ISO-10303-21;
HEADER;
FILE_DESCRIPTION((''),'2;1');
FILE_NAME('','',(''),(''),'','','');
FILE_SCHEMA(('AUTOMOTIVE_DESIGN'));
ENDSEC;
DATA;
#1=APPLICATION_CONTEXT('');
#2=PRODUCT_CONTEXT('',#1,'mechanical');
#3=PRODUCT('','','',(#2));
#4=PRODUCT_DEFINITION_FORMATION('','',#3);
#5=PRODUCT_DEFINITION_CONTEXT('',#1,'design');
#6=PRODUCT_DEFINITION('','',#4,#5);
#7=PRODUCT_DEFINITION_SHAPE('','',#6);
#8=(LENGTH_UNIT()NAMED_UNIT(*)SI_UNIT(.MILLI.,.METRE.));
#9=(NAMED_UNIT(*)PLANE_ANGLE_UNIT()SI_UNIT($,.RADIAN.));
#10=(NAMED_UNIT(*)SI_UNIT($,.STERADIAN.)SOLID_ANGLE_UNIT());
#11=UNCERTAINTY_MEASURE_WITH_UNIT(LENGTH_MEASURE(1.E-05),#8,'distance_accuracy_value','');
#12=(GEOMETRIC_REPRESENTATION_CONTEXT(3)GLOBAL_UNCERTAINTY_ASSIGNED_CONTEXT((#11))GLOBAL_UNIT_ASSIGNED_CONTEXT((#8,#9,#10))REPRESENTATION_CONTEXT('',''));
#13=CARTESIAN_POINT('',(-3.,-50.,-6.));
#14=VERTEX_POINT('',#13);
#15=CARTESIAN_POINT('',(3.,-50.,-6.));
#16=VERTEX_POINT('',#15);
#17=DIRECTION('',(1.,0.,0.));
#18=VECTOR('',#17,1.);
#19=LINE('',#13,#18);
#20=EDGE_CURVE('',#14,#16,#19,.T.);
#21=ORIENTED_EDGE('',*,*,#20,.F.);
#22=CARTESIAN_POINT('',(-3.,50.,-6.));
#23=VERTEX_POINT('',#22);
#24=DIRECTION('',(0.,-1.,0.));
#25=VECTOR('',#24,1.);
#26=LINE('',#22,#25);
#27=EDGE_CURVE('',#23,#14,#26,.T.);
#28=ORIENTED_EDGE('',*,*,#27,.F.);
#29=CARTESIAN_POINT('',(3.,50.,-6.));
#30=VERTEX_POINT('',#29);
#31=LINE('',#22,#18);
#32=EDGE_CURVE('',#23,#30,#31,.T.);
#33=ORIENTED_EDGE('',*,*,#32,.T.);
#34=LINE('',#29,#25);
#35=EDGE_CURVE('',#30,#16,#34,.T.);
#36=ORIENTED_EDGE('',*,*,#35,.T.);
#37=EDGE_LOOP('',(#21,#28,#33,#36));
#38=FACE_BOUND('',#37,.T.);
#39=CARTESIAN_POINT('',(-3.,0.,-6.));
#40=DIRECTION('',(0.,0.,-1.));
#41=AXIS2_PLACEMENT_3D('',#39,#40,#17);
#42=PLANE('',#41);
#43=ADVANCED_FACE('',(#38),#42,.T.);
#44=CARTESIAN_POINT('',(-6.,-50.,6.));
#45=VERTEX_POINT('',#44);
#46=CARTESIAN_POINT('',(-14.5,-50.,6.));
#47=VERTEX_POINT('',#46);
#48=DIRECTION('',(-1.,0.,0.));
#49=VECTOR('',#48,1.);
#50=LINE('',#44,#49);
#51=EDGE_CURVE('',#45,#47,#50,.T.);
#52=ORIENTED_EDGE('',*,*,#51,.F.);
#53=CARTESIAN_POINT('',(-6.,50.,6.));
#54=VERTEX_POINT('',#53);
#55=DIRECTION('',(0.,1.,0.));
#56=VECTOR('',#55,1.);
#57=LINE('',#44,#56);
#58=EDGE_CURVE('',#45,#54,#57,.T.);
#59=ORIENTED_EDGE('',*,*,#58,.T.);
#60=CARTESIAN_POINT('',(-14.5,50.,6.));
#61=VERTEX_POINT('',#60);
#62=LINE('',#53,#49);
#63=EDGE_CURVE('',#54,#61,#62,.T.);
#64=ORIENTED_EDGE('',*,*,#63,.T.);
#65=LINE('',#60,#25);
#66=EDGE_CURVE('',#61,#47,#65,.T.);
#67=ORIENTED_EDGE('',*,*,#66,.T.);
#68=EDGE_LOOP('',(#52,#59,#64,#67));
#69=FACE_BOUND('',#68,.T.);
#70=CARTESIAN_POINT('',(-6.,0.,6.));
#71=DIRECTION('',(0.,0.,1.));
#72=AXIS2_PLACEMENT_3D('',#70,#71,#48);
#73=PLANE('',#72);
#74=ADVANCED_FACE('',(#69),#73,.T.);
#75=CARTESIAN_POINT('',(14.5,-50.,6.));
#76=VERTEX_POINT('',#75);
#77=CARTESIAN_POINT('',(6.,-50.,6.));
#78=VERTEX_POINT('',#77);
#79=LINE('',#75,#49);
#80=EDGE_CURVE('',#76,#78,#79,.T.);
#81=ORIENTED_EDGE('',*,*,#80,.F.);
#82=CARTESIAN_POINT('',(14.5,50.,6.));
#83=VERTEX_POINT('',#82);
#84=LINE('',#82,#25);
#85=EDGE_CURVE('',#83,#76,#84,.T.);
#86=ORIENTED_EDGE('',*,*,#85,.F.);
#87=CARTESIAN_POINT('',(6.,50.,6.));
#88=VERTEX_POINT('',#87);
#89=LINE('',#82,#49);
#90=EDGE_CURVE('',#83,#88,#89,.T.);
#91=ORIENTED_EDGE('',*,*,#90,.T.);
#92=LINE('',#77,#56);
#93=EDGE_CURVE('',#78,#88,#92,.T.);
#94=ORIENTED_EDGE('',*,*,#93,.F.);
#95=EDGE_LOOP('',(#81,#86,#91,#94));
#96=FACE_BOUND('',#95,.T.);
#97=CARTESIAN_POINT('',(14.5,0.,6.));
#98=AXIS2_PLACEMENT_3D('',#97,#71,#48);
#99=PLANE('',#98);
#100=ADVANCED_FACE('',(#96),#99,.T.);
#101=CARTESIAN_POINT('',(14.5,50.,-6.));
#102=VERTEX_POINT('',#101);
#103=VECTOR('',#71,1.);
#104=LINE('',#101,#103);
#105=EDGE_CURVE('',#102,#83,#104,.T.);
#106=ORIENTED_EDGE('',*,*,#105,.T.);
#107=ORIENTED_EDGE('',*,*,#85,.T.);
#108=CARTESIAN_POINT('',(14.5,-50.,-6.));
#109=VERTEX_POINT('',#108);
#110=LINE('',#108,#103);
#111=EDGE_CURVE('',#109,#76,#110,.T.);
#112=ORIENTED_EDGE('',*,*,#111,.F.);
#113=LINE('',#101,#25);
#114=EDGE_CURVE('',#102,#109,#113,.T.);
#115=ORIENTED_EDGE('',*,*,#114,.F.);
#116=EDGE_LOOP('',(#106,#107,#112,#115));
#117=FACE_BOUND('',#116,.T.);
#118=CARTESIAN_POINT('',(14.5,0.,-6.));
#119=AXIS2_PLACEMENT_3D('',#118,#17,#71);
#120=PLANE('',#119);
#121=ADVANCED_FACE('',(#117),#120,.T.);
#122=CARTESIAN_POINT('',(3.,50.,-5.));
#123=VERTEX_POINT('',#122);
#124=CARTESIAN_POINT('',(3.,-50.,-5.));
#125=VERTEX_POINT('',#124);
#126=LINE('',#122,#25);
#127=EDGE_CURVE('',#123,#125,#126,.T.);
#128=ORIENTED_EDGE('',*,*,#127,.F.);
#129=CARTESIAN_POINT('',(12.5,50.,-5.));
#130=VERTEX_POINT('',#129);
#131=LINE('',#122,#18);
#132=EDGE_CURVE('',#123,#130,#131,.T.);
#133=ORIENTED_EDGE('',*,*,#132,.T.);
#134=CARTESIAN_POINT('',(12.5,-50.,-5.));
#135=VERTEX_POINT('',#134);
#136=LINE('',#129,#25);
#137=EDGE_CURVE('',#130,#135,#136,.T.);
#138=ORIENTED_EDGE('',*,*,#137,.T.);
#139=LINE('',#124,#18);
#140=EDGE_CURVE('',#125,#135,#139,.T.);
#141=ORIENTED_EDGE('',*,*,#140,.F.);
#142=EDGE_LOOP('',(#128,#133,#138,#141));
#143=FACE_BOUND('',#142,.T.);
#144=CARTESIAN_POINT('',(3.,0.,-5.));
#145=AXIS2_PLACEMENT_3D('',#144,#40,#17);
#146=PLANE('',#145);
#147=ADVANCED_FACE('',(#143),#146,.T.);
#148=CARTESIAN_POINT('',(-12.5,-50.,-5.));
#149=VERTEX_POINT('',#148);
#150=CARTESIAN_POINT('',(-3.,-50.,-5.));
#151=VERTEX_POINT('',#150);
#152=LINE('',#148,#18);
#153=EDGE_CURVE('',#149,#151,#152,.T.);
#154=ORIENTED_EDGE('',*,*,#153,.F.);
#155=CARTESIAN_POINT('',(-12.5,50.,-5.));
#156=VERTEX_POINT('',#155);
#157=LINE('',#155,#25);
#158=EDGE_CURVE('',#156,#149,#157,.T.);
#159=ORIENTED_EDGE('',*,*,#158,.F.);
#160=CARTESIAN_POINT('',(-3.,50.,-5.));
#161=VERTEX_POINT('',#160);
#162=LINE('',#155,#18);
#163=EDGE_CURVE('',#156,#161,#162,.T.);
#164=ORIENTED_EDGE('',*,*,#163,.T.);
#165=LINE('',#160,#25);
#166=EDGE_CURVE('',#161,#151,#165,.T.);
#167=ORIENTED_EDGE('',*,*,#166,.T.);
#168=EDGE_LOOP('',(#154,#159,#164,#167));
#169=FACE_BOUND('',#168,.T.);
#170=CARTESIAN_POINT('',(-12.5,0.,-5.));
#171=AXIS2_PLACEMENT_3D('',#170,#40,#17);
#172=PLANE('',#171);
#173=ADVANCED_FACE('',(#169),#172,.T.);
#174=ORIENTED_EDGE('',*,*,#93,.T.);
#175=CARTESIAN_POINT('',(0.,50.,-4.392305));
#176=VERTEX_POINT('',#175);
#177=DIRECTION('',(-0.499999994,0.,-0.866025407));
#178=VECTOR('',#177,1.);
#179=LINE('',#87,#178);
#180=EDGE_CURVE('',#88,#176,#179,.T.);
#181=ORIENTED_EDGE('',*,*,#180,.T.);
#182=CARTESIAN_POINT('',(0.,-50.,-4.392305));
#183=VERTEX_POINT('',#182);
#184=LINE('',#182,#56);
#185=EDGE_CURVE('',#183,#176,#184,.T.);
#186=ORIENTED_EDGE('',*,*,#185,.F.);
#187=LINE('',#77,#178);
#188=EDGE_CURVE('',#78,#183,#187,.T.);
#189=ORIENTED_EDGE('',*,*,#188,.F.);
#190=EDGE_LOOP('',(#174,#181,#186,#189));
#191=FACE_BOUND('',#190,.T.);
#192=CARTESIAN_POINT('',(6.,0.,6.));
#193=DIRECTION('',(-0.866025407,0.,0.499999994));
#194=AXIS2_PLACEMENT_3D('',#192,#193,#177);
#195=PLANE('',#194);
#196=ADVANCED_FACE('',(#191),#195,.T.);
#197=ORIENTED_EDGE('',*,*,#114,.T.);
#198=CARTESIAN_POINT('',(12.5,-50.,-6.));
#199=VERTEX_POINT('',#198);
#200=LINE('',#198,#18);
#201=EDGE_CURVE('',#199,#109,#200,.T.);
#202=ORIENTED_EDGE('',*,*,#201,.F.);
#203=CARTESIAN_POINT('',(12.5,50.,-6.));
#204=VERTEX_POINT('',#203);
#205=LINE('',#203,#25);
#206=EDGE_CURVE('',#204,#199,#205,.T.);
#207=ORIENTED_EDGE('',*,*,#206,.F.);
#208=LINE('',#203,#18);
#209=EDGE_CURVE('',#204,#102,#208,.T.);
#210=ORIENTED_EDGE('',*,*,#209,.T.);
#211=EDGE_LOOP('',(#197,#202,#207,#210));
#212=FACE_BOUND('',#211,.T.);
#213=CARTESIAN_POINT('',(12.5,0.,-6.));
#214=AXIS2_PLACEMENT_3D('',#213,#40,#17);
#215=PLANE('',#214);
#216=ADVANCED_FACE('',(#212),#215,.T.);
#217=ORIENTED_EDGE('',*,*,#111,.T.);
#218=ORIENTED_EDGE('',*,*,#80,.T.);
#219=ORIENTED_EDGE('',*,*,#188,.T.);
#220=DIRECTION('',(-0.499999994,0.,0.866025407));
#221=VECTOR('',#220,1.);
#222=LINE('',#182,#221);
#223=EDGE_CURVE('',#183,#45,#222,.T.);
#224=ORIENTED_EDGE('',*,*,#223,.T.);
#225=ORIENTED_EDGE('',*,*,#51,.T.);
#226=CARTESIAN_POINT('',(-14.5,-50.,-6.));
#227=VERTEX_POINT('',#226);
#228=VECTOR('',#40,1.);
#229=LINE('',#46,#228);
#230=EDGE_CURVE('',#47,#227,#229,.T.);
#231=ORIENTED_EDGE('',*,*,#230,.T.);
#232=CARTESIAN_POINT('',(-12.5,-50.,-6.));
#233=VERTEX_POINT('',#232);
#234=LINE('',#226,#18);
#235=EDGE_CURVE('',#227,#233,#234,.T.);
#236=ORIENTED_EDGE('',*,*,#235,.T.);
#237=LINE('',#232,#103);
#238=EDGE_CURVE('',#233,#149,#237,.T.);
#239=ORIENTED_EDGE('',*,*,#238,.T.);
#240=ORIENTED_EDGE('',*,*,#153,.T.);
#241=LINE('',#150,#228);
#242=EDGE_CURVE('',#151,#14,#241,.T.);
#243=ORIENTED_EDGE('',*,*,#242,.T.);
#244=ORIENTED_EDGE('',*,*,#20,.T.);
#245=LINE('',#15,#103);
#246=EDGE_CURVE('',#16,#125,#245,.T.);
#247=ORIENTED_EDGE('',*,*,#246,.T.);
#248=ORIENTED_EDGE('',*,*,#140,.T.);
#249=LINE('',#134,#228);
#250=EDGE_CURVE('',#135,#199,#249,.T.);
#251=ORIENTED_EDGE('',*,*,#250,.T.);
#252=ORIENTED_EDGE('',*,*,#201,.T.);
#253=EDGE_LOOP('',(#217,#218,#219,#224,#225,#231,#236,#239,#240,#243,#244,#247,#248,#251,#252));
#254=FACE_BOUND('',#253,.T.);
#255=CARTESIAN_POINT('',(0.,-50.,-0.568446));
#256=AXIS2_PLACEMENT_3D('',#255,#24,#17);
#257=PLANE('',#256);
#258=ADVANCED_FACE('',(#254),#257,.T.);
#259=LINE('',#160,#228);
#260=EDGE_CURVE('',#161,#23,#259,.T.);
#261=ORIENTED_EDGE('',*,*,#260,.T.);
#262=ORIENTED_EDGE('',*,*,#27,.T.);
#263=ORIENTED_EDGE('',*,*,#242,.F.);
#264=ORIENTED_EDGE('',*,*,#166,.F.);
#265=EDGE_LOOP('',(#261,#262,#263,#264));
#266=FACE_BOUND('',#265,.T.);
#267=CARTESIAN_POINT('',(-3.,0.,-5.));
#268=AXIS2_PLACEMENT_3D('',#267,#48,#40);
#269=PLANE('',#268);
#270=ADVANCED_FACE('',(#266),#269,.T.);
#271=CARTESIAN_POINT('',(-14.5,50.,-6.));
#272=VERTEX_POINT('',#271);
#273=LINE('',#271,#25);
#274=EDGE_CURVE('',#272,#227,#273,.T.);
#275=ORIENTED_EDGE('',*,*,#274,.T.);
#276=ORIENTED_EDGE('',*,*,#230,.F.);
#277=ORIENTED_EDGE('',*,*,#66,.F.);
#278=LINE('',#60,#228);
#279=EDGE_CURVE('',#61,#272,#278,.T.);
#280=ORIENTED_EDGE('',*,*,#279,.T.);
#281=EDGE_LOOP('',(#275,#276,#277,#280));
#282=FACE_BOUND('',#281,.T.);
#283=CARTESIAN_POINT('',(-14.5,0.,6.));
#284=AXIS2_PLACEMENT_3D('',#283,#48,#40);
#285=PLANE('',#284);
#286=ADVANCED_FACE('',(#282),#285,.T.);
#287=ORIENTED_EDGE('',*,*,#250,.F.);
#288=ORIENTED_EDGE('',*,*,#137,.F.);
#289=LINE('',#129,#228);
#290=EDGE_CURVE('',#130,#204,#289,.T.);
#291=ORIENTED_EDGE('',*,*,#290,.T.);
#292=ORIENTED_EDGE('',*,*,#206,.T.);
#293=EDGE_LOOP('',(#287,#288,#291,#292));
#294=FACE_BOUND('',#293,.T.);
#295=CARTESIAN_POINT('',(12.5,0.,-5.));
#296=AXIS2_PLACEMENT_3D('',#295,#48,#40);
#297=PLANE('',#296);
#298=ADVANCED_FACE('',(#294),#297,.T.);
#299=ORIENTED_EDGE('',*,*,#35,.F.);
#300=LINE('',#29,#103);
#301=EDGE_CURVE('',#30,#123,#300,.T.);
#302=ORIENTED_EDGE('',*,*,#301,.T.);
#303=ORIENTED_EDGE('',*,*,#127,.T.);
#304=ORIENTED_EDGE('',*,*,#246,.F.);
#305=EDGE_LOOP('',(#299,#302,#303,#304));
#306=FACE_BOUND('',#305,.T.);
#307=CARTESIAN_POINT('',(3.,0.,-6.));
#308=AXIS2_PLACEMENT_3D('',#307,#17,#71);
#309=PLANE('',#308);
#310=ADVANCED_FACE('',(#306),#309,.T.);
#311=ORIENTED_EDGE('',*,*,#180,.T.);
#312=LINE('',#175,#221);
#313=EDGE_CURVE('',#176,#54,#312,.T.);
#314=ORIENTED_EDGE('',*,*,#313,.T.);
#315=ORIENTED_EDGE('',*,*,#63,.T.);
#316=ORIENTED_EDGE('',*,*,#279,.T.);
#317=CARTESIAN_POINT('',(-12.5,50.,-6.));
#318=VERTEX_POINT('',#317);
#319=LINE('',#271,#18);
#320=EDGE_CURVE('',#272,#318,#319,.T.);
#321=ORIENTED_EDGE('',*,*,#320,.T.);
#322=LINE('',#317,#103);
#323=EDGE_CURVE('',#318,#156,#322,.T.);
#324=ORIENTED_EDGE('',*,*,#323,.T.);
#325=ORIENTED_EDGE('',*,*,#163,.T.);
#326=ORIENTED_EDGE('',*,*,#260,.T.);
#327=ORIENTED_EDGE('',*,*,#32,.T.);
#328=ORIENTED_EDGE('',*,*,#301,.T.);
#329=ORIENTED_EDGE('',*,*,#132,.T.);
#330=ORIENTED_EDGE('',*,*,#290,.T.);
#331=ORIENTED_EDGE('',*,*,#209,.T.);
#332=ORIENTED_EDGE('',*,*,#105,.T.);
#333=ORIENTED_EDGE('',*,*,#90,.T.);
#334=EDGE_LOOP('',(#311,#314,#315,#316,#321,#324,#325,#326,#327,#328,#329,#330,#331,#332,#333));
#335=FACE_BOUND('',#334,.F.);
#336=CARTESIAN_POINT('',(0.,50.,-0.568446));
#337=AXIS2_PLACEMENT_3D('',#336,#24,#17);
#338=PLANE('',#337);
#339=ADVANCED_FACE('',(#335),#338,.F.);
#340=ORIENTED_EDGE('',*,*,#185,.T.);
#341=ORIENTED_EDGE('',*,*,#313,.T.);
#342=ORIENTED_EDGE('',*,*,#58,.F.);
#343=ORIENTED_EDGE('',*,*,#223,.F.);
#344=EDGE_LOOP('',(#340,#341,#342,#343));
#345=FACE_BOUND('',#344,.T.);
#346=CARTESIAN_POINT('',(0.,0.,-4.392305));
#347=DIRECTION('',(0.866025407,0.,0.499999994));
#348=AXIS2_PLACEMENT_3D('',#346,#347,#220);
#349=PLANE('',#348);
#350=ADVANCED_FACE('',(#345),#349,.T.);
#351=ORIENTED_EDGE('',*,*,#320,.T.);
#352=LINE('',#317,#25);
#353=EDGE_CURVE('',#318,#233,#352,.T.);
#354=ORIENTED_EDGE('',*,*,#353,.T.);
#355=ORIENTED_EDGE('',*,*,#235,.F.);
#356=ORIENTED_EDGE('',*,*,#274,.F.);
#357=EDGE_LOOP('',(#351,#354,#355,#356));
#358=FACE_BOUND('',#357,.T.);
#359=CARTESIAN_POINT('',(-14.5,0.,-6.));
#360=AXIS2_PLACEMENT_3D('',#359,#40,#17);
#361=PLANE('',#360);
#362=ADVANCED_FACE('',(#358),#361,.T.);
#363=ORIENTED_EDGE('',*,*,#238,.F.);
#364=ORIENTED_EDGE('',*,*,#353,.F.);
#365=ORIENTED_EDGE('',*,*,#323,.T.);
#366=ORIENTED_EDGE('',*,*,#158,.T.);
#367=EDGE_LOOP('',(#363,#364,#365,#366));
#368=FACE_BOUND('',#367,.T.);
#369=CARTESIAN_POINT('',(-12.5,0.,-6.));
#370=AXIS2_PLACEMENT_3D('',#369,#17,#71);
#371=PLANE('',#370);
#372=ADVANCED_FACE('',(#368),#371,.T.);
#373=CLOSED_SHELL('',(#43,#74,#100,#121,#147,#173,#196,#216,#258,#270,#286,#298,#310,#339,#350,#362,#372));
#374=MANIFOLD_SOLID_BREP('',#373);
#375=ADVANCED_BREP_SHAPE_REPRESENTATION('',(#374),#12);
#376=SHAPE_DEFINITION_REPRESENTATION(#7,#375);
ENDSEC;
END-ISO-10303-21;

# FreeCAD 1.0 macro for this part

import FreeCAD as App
import Part
import Sketcher
Q = App.Units.Quantity


def add_polygon(sketch, points):
    """Adds a closed chain of lines whose ends are joined by coincident constraints."""
    first, n = sketch.GeometryCount, len(points)
    for a, b in zip(points, points[1:] + points[:1]):
        sketch.addGeometry(Part.LineSegment(App.Vector(*a, 0), App.Vector(*b, 0)), False)
    for i in range(n):
        sketch.addConstraint(Sketcher.Constraint("Coincident", first + i, 2, first + (i + 1) % n, 1))

doc = App.newDocument("Part")
params = doc.addObject("Spreadsheet::Sheet", "Params")
for row, (alias, value) in enumerate([
    ("sketch1_width", "2 mm"),
    ("sketch1_width2", "6 mm"),
    ("sketch1_height", "12 mm"),
    ("sketch1_height2", "1 mm"),
    ("sketch1_length", "12 mm"),
    ("pad1_length", "100 mm"),
], start=1):
    params.set(f"A{row}", alias)
    params.set(f"B{row}", "=" + value)
    params.setAlias(f"B{row}", alias)

body = doc.addObject("PartDesign::Body", "Body")

sketch1 = body.newObject("Sketcher::SketchObject", "Sketch")
sketch1.AttachmentSupport = (doc.getObject("XZ_Plane"), [""])
sketch1.MapMode = "FlatFace"
add_polygon(sketch1, [(-6, 6), (-14.5, 6), (-14.5, -6), (-12.5, -6), (-12.5, -5), (-3, -5), (-3, -6), (3, -6), (3, -5), (12.5, -5), (12.5, -6), (14.5, -6), (14.5, 6), (6, 6), (0, -4.392305)])
sketch1.addConstraint([
    Sketcher.Constraint("Horizontal", 0),
    Sketcher.Constraint("Vertical", 1),
    Sketcher.Constraint("Horizontal", 2),
    Sketcher.Constraint("Vertical", 3),
    Sketcher.Constraint("Horizontal", 4),
    Sketcher.Constraint("Vertical", 5),
    Sketcher.Constraint("Horizontal", 6),
    Sketcher.Constraint("Vertical", 7),
    Sketcher.Constraint("Horizontal", 8),
    Sketcher.Constraint("Vertical", 9),
    Sketcher.Constraint("Horizontal", 10),
    Sketcher.Constraint("Vertical", 11),
    Sketcher.Constraint("Horizontal", 12),
    Sketcher.Constraint("Symmetric", 0, 2, 10, 2, -1, 1),
    Sketcher.Constraint("Symmetric", 4, 2, 7, 2, -2),
    Sketcher.Constraint("Symmetric", 2, 2, 9, 2, -2),
    Sketcher.Constraint("Symmetric", 12, 2, 14, 2, -2),
    Sketcher.Constraint("PointOnObject", 13, 2, -2),
    Sketcher.Constraint("Horizontal", 2, 2, 5, 2),
    Sketcher.Constraint("DistanceX", 2, 1, 2, 2, Q("2 mm")),
    Sketcher.Constraint("DistanceX", 6, 1, 6, 2, Q("6 mm")),
    Sketcher.Constraint("DistanceY", 1, 2, 1, 1, Q("12 mm")),
    Sketcher.Constraint("DistanceY", 3, 1, 3, 2, Q("1 mm")),
    Sketcher.Constraint("Angle", 13, Q("-120 deg")),
    Sketcher.Constraint("Distance", 13, Q("12 mm")),
    Sketcher.Constraint("DistanceX", 0, 2, 0, 1, Q("8.5 mm")),
])
sketch1.setExpression("Constraints[34]", "Params.sketch1_width")
sketch1.setExpression("Constraints[35]", "Params.sketch1_width2")
sketch1.setExpression("Constraints[36]", "Params.sketch1_height")
sketch1.setExpression("Constraints[37]", "Params.sketch1_height2")
sketch1.setExpression("Constraints[39]", "Params.sketch1_length")
pad1 = body.newObject("PartDesign::Pad", "Pad")
pad1.Profile = sketch1
pad1.setExpression("Length", "Params.pad1_length")
pad1.Midplane = True

doc.recompute()
